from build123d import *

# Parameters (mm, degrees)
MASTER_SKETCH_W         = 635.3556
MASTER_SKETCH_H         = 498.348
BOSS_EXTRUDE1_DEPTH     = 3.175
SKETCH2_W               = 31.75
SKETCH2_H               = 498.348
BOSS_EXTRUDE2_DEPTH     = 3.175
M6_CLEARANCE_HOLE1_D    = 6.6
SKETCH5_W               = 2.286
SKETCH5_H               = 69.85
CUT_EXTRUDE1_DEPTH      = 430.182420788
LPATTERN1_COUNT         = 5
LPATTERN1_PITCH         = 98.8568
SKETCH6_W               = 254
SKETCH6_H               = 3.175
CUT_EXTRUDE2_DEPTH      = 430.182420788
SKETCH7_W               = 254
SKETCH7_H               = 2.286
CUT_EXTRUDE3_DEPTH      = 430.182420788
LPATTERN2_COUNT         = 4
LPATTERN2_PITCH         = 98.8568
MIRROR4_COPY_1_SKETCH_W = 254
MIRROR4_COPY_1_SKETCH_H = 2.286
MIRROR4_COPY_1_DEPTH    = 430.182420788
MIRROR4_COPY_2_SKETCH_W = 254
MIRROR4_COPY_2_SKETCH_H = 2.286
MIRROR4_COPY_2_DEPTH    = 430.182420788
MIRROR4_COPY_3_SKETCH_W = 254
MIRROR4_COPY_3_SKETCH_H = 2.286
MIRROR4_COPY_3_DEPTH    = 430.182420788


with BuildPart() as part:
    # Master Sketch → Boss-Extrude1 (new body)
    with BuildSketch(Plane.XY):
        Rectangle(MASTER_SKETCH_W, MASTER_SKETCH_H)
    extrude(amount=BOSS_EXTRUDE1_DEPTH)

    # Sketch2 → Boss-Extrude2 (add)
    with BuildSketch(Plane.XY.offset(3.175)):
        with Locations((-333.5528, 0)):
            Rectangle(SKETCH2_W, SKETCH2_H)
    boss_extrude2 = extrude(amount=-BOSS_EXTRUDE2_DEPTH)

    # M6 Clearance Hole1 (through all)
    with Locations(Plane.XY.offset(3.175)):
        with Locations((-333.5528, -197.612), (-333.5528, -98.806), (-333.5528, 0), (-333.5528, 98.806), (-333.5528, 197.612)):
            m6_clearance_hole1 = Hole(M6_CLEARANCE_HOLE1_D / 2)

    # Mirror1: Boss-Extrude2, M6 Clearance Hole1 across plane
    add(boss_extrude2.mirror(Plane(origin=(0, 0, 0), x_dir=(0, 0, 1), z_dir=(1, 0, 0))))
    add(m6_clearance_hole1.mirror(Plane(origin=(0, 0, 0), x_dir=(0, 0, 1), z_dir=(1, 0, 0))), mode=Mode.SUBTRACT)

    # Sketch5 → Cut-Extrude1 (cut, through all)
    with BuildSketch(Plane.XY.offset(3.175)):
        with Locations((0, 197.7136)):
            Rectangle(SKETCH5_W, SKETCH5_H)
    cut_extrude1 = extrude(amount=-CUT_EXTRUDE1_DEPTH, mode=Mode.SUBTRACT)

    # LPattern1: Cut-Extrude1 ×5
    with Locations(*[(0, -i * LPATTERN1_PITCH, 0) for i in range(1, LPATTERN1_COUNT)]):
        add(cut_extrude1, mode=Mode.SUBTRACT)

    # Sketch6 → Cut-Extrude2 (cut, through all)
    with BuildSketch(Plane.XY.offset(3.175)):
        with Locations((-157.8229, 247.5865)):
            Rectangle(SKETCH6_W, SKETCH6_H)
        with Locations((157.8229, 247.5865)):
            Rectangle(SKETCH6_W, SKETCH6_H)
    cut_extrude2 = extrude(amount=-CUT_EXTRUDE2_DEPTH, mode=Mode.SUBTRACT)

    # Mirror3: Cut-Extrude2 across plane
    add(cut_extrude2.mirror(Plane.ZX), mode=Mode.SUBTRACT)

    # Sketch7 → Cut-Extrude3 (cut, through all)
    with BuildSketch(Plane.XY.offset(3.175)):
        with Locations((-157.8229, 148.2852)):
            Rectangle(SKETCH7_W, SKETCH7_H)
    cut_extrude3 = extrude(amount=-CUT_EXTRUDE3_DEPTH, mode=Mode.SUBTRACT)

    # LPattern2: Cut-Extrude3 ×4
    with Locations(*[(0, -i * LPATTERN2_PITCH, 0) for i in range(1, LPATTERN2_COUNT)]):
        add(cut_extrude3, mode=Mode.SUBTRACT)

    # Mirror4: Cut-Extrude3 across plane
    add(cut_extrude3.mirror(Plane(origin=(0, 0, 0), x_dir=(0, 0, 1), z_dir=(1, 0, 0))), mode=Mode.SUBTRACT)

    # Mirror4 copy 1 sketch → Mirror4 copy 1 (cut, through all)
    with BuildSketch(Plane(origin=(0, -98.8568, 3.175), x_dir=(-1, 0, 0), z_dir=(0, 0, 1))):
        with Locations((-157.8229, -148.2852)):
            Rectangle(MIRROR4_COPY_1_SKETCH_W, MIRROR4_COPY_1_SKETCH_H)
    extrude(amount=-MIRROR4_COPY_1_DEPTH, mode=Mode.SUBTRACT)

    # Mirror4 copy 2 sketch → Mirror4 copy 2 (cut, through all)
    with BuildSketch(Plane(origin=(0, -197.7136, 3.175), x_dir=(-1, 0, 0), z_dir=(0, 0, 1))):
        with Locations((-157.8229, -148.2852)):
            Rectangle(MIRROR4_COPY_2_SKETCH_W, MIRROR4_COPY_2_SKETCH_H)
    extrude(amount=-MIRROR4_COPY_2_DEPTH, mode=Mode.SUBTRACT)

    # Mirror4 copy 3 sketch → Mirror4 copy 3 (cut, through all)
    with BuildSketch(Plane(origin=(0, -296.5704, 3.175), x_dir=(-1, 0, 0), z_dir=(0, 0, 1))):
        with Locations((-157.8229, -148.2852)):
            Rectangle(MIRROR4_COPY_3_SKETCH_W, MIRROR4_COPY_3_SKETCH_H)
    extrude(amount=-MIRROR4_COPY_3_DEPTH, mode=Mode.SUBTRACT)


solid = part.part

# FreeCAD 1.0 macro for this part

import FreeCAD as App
import Part
import Sketcher

V = App.Vector
Q = App.Units.Quantity


def add_polygon(sketch, points):
    """Adds a closed chain of lines whose ends are joined by coincident constraints."""
    first, n = sketch.GeometryCount, len(points)
    for a, b in zip(points, points[1:] + points[:1]):
        sketch.addGeometry(Part.LineSegment(App.Vector(*a, 0), App.Vector(*b, 0)), False)
    for i in range(n):
        sketch.addConstraint(Sketcher.Constraint("Coincident", first + i, 2, first + (i + 1) % n, 1))

doc = App.newDocument("Part")
body = doc.addObject("PartDesign::Body", "Body")

# Sketch on XY plane
sketch1 = body.newObject("Sketcher::SketchObject", "Sketch")
sketch1.AttachmentSupport = (doc.getObject("XY_Plane"), [""])
sketch1.MapMode = "FlatFace"
add_polygon(sketch1, [(-318, 249), (-318, -249), (318, -249), (318, 249)])  # lines 0-3
sketch1.addConstraint([
    Sketcher.Constraint("Vertical", 0),
    Sketcher.Constraint("Horizontal", 1),
    Sketcher.Constraint("Vertical", 2),
    Sketcher.Constraint("Horizontal", 3),
    Sketcher.Constraint("Symmetric", 0, 2, 2, 2, -1, 1),
    Sketcher.Constraint("DistanceY", 0, 2, 0, 1, Q("19.62 in")),
    Sketcher.Constraint("DistanceX", 1, 1, 1, 2, Q("25.014 in")),
])
pad1 = body.newObject("PartDesign::Pad", "Pad")
pad1.Profile = sketch1
pad1.Length = Q("0.125 in")

# Sketch on XY plane
sketch2 = body.newObject("Sketcher::SketchObject", "Sketch001")
sketch2.AttachmentSupport = (doc.getObject("XY_Plane"), [""])
sketch2.MapMode = "FlatFace"
sketch2.AttachmentOffset = App.Placement(V(0, 0, 0.125 * 25.4), App.Rotation())
add_polygon(sketch2, [(-349, 249), (-349, -249), (-318, -249), (-318, 249)])  # lines 0-3
sketch2.addConstraint([
    Sketcher.Constraint("Vertical", 0),
    Sketcher.Constraint("Horizontal", 1),
    Sketcher.Constraint("Vertical", 2),
    Sketcher.Constraint("Horizontal", 3),
    Sketcher.Constraint("DistanceX", 1, 1, 1, 2, Q("1.25 in")),
    Sketcher.Constraint("DistanceY", 0, 2, 0, 1, Q("19.62 in")),
    Sketcher.Constraint("DistanceY", 0, 2, -1, 1, Q("9.81 in")),
    Sketcher.Constraint("DistanceX", 0, 2, -1, 1, Q("13.757 in")),
])
pad2 = body.newObject("PartDesign::Pad", "Pad001")
pad2.Profile = sketch2
pad2.Length = Q("0.125 in")
pad2.Reversed = True

# Sketch on XY plane
sketch3 = body.newObject("Sketcher::SketchObject", "Sketch002")
sketch3.AttachmentSupport = (doc.getObject("XY_Plane"), [""])
sketch3.MapMode = "FlatFace"
sketch3.AttachmentOffset = App.Placement(V(0, 0, 0.125 * 25.4), App.Rotation())
sketch3.addGeometry([
    Part.Circle(V(-333.6, -197.6, 0), V(0, 0, 1), 3.3),  # 0
    Part.Circle(V(-333.6, -98.8, 0), V(0, 0, 1), 3.3),  # 1
    Part.Circle(V(-333.6, 0, 0), V(0, 0, 1), 3.3),  # 2
    Part.Circle(V(-333.6, 98.8, 0), V(0, 0, 1), 3.3),  # 3
    Part.Circle(V(-333.6, 197.6, 0), V(0, 0, 1), 3.3),  # 4
], False)
sketch3.addConstraint([
    Sketcher.Constraint("Equal", 0, 1),
    Sketcher.Constraint("Equal", 1, 2),
    Sketcher.Constraint("Equal", 2, 3),
    Sketcher.Constraint("Equal", 3, 4),
    Sketcher.Constraint("Symmetric", 1, 3, 3, 3, -1),
    Sketcher.Constraint("Symmetric", 0, 3, 4, 3, -1),
    Sketcher.Constraint("PointOnObject", 2, 3, -1),
    Sketcher.Constraint("Vertical", 0, 3, 1, 3),
    Sketcher.Constraint("Vertical", 1, 3, 2, 3),
    Sketcher.Constraint("Diameter", 0, Q("6.6 mm")),
    Sketcher.Constraint("DistanceY", 0, 3, -1, 1, Q("7.78 in")),
    Sketcher.Constraint("DistanceY", 1, 3, -1, 1, Q("3.89 in")),
    Sketcher.Constraint("DistanceX", 0, 3, -1, 1, Q("13.132 in")),
])
doc.recompute()
hole = body.newObject("PartDesign::Hole", "Hole")
hole.Profile = sketch3
hole.ThreadType = "None"
hole.Diameter = 6.6
hole.DepthType = "ThroughAll"
doc.recompute()

mirrored = body.newObject("PartDesign::Mirrored", "Mirrored")
mirrored.Originals = [pad2, hole]
mirrored.MirrorPlane = (doc.getObject("YZ_Plane"), [""])
body.Tip = mirrored

# Sketch on XY plane
sketch4 = body.newObject("Sketcher::SketchObject", "Sketch003")
sketch4.AttachmentSupport = (doc.getObject("XY_Plane"), [""])
sketch4.MapMode = "FlatFace"
sketch4.AttachmentOffset = App.Placement(V(0, 0, 0.125 * 25.4), App.Rotation())
add_polygon(sketch4, [(-1.1, 232.6), (-1.1, 162.8), (1.1, 162.8), (1.1, 232.6)])  # lines 0-3
sketch4.addConstraint([
    Sketcher.Constraint("Vertical", 0),
    Sketcher.Constraint("Horizontal", 1),
    Sketcher.Constraint("Vertical", 2),
    Sketcher.Constraint("Horizontal", 3),
    Sketcher.Constraint("DistanceX", 1, 1, 1, 2, Q("0.09 in")),
    Sketcher.Constraint("DistanceY", 0, 2, 0, 1, Q("2.75 in")),
    Sketcher.Constraint("DistanceX", 0, 2, -1, 1, Q("0.045 in")),
    Sketcher.Constraint("DistanceY", -1, 1, 0, 2, Q("6.409 in")),
])
pocket1 = body.newObject("PartDesign::Pocket", "Pocket")
pocket1.Profile = sketch4
pocket1.Type = "ThroughAll"
doc.recompute()

linearpattern = body.newObject("PartDesign::LinearPattern", "LinearPattern")
linearpattern.Originals = [pocket1]
linearpattern.Direction = (doc.getObject("Y_Axis"), [""])
linearpattern.Mode = "offset"
linearpattern.Offset = Q("3.892 in")
linearpattern.Occurrences = 5
linearpattern.Reversed = True
body.Tip = linearpattern

# Sketch on XY plane
sketch5 = body.newObject("Sketcher::SketchObject", "Sketch004")
sketch5.AttachmentSupport = (doc.getObject("XY_Plane"), [""])
sketch5.MapMode = "FlatFace"
sketch5.AttachmentOffset = App.Placement(V(0, 0, 0.125 * 25.4), App.Rotation())
add_polygon(sketch5, [(-284.8, 249.2), (-284.8, 246), (-30.8, 246), (-30.8, 249.2)])  # lines 0-3
add_polygon(sketch5, [(30.8, 249.2), (30.8, 246), (284.8, 246), (284.8, 249.2)])  # lines 4-7
sketch5.addConstraint([
    Sketcher.Constraint("Vertical", 0),
    Sketcher.Constraint("Horizontal", 1),
    Sketcher.Constraint("Vertical", 2),
    Sketcher.Constraint("Horizontal", 3),
    Sketcher.Constraint("Vertical", 4),
    Sketcher.Constraint("Horizontal", 5),
    Sketcher.Constraint("Vertical", 6),
    Sketcher.Constraint("Horizontal", 7),
    Sketcher.Constraint("Symmetric", 1, 2, 4, 2, -2),
    Sketcher.Constraint("Symmetric", 3, 2, 6, 2, -2),
    Sketcher.Constraint("DistanceX", 1, 1, 1, 2, Q("10 in")),
    Sketcher.Constraint("DistanceY", 0, 2, 0, 1, Q("0.125 in")),
    Sketcher.Constraint("DistanceY", -1, 1, 2, 2, Q("9.81 in")),
    Sketcher.Constraint("DistanceX", 1, 2, 4, 2, Q("2.427 in")),
])
pocket2 = body.newObject("PartDesign::Pocket", "Pocket001")
pocket2.Profile = sketch5
pocket2.Type = "ThroughAll"
doc.recompute()

mirrored2 = body.newObject("PartDesign::Mirrored", "Mirrored001")
mirrored2.Originals = [pocket2]
mirrored2.MirrorPlane = (doc.getObject("XZ_Plane"), [""])
body.Tip = mirrored2

# Sketch on XY plane
sketch6 = body.newObject("Sketcher::SketchObject", "Sketch005")
sketch6.AttachmentSupport = (doc.getObject("XY_Plane"), [""])
sketch6.MapMode = "FlatFace"
sketch6.AttachmentOffset = App.Placement(V(0, 0, 0.125 * 25.4), App.Rotation())
add_polygon(sketch6, [(-284.8, 149.4), (-284.8, 147.1), (-30.8, 147.1), (-30.8, 149.4)])  # lines 0-3
sketch6.addConstraint([
    Sketcher.Constraint("Vertical", 0),
    Sketcher.Constraint("Horizontal", 1),
    Sketcher.Constraint("Vertical", 2),
    Sketcher.Constraint("Horizontal", 3),
    Sketcher.Constraint("DistanceX", 1, 1, 1, 2, Q("10 in")),
    Sketcher.Constraint("DistanceY", 0, 2, 0, 1, Q("0.09 in")),
    Sketcher.Constraint("DistanceY", -1, 1, 0, 2, Q("5.793 in")),
    Sketcher.Constraint("DistanceX", 0, 2, -1, 1, Q("11.2135 in")),
])
pocket3 = body.newObject("PartDesign::Pocket", "Pocket002")
pocket3.Profile = sketch6
pocket3.Type = "ThroughAll"
doc.recompute()

linearpattern2 = body.newObject("PartDesign::LinearPattern", "LinearPattern001")
linearpattern2.Originals = [pocket3]
linearpattern2.Direction = (doc.getObject("Y_Axis"), [""])
linearpattern2.Mode = "offset"
linearpattern2.Offset = Q("3.892 in")
linearpattern2.Occurrences = 4
linearpattern2.Reversed = True
body.Tip = linearpattern2
doc.recompute()

mirrored3 = body.newObject("PartDesign::Mirrored", "Mirrored002")
mirrored3.Originals = [pocket3]
mirrored3.MirrorPlane = (doc.getObject("YZ_Plane"), [""])
body.Tip = mirrored3

# Sketch on XY plane
sketch7 = body.newObject("Sketcher::SketchObject", "Sketch006")
sketch7.AttachmentSupport = (doc.getObject("XY_Plane"), [""])
sketch7.MapMode = "FlatFace"
sketch7.AttachmentOffset = App.Placement(V(0, 0, 0.125 * 25.4), App.Rotation())
add_polygon(sketch7, [(284.8, 48.3), (284.8, 50.6), (30.8, 50.6), (30.8, 48.3)])  # lines 0-3
sketch7.addConstraint([
    Sketcher.Constraint("Vertical", 0),
    Sketcher.Constraint("Horizontal", 1),
    Sketcher.Constraint("Vertical", 2),
    Sketcher.Constraint("Horizontal", 3),
    Sketcher.Constraint("DistanceX", 1, 2, 1, 1, Q("10 in")),
    Sketcher.Constraint("DistanceY", 0, 1, 0, 2, Q("0.09 in")),
    Sketcher.Constraint("DistanceY", -1, 1, 0, 2, Q("1.991 in")),
    Sketcher.Constraint("DistanceX", -1, 1, 0, 2, Q("11.2135 in")),
])
pocket4 = body.newObject("PartDesign::Pocket", "Pocket003")
pocket4.Profile = sketch7
pocket4.Type = "ThroughAll"

# Sketch on XY plane
sketch8 = body.newObject("Sketcher::SketchObject", "Sketch007")
sketch8.AttachmentSupport = (doc.getObject("XY_Plane"), [""])
sketch8.MapMode = "FlatFace"
sketch8.AttachmentOffset = App.Placement(V(0, 0, 0.125 * 25.4), App.Rotation())
add_polygon(sketch8, [(284.8, -50.6), (284.8, -48.3), (30.8, -48.3), (30.8, -50.6)])  # lines 0-3
sketch8.addConstraint([
    Sketcher.Constraint("Vertical", 0),
    Sketcher.Constraint("Horizontal", 1),
    Sketcher.Constraint("Vertical", 2),
    Sketcher.Constraint("Horizontal", 3),
    Sketcher.Constraint("DistanceX", 1, 2, 1, 1, Q("10 in")),
    Sketcher.Constraint("DistanceY", 0, 1, 0, 2, Q("0.09 in")),
    Sketcher.Constraint("DistanceY", 0, 2, -1, 1, Q("1.901 in")),
    Sketcher.Constraint("DistanceX", -1, 1, 0, 2, Q("11.2135 in")),
])
pocket5 = body.newObject("PartDesign::Pocket", "Pocket004")
pocket5.Profile = sketch8
pocket5.Type = "ThroughAll"

# Sketch on XY plane
sketch9 = body.newObject("Sketcher::SketchObject", "Sketch008")
sketch9.AttachmentSupport = (doc.getObject("XY_Plane"), [""])
sketch9.MapMode = "FlatFace"
sketch9.AttachmentOffset = App.Placement(V(0, 0, 0.125 * 25.4), App.Rotation())
add_polygon(sketch9, [(284.8, -149.4), (284.8, -147.1), (30.8, -147.1), (30.8, -149.4)])  # lines 0-3
sketch9.addConstraint([
    Sketcher.Constraint("Vertical", 0),
    Sketcher.Constraint("Horizontal", 1),
    Sketcher.Constraint("Vertical", 2),
    Sketcher.Constraint("Horizontal", 3),
    Sketcher.Constraint("DistanceX", 1, 2, 1, 1, Q("10 in")),
    Sketcher.Constraint("DistanceY", 0, 1, 0, 2, Q("0.09 in")),
    Sketcher.Constraint("DistanceY", 0, 2, -1, 1, Q("5.793 in")),
    Sketcher.Constraint("DistanceX", -1, 1, 0, 2, Q("11.2135 in")),
])
pocket6 = body.newObject("PartDesign::Pocket", "Pocket005")
pocket6.Profile = sketch9
pocket6.Type = "ThroughAll"

doc.recompute()
